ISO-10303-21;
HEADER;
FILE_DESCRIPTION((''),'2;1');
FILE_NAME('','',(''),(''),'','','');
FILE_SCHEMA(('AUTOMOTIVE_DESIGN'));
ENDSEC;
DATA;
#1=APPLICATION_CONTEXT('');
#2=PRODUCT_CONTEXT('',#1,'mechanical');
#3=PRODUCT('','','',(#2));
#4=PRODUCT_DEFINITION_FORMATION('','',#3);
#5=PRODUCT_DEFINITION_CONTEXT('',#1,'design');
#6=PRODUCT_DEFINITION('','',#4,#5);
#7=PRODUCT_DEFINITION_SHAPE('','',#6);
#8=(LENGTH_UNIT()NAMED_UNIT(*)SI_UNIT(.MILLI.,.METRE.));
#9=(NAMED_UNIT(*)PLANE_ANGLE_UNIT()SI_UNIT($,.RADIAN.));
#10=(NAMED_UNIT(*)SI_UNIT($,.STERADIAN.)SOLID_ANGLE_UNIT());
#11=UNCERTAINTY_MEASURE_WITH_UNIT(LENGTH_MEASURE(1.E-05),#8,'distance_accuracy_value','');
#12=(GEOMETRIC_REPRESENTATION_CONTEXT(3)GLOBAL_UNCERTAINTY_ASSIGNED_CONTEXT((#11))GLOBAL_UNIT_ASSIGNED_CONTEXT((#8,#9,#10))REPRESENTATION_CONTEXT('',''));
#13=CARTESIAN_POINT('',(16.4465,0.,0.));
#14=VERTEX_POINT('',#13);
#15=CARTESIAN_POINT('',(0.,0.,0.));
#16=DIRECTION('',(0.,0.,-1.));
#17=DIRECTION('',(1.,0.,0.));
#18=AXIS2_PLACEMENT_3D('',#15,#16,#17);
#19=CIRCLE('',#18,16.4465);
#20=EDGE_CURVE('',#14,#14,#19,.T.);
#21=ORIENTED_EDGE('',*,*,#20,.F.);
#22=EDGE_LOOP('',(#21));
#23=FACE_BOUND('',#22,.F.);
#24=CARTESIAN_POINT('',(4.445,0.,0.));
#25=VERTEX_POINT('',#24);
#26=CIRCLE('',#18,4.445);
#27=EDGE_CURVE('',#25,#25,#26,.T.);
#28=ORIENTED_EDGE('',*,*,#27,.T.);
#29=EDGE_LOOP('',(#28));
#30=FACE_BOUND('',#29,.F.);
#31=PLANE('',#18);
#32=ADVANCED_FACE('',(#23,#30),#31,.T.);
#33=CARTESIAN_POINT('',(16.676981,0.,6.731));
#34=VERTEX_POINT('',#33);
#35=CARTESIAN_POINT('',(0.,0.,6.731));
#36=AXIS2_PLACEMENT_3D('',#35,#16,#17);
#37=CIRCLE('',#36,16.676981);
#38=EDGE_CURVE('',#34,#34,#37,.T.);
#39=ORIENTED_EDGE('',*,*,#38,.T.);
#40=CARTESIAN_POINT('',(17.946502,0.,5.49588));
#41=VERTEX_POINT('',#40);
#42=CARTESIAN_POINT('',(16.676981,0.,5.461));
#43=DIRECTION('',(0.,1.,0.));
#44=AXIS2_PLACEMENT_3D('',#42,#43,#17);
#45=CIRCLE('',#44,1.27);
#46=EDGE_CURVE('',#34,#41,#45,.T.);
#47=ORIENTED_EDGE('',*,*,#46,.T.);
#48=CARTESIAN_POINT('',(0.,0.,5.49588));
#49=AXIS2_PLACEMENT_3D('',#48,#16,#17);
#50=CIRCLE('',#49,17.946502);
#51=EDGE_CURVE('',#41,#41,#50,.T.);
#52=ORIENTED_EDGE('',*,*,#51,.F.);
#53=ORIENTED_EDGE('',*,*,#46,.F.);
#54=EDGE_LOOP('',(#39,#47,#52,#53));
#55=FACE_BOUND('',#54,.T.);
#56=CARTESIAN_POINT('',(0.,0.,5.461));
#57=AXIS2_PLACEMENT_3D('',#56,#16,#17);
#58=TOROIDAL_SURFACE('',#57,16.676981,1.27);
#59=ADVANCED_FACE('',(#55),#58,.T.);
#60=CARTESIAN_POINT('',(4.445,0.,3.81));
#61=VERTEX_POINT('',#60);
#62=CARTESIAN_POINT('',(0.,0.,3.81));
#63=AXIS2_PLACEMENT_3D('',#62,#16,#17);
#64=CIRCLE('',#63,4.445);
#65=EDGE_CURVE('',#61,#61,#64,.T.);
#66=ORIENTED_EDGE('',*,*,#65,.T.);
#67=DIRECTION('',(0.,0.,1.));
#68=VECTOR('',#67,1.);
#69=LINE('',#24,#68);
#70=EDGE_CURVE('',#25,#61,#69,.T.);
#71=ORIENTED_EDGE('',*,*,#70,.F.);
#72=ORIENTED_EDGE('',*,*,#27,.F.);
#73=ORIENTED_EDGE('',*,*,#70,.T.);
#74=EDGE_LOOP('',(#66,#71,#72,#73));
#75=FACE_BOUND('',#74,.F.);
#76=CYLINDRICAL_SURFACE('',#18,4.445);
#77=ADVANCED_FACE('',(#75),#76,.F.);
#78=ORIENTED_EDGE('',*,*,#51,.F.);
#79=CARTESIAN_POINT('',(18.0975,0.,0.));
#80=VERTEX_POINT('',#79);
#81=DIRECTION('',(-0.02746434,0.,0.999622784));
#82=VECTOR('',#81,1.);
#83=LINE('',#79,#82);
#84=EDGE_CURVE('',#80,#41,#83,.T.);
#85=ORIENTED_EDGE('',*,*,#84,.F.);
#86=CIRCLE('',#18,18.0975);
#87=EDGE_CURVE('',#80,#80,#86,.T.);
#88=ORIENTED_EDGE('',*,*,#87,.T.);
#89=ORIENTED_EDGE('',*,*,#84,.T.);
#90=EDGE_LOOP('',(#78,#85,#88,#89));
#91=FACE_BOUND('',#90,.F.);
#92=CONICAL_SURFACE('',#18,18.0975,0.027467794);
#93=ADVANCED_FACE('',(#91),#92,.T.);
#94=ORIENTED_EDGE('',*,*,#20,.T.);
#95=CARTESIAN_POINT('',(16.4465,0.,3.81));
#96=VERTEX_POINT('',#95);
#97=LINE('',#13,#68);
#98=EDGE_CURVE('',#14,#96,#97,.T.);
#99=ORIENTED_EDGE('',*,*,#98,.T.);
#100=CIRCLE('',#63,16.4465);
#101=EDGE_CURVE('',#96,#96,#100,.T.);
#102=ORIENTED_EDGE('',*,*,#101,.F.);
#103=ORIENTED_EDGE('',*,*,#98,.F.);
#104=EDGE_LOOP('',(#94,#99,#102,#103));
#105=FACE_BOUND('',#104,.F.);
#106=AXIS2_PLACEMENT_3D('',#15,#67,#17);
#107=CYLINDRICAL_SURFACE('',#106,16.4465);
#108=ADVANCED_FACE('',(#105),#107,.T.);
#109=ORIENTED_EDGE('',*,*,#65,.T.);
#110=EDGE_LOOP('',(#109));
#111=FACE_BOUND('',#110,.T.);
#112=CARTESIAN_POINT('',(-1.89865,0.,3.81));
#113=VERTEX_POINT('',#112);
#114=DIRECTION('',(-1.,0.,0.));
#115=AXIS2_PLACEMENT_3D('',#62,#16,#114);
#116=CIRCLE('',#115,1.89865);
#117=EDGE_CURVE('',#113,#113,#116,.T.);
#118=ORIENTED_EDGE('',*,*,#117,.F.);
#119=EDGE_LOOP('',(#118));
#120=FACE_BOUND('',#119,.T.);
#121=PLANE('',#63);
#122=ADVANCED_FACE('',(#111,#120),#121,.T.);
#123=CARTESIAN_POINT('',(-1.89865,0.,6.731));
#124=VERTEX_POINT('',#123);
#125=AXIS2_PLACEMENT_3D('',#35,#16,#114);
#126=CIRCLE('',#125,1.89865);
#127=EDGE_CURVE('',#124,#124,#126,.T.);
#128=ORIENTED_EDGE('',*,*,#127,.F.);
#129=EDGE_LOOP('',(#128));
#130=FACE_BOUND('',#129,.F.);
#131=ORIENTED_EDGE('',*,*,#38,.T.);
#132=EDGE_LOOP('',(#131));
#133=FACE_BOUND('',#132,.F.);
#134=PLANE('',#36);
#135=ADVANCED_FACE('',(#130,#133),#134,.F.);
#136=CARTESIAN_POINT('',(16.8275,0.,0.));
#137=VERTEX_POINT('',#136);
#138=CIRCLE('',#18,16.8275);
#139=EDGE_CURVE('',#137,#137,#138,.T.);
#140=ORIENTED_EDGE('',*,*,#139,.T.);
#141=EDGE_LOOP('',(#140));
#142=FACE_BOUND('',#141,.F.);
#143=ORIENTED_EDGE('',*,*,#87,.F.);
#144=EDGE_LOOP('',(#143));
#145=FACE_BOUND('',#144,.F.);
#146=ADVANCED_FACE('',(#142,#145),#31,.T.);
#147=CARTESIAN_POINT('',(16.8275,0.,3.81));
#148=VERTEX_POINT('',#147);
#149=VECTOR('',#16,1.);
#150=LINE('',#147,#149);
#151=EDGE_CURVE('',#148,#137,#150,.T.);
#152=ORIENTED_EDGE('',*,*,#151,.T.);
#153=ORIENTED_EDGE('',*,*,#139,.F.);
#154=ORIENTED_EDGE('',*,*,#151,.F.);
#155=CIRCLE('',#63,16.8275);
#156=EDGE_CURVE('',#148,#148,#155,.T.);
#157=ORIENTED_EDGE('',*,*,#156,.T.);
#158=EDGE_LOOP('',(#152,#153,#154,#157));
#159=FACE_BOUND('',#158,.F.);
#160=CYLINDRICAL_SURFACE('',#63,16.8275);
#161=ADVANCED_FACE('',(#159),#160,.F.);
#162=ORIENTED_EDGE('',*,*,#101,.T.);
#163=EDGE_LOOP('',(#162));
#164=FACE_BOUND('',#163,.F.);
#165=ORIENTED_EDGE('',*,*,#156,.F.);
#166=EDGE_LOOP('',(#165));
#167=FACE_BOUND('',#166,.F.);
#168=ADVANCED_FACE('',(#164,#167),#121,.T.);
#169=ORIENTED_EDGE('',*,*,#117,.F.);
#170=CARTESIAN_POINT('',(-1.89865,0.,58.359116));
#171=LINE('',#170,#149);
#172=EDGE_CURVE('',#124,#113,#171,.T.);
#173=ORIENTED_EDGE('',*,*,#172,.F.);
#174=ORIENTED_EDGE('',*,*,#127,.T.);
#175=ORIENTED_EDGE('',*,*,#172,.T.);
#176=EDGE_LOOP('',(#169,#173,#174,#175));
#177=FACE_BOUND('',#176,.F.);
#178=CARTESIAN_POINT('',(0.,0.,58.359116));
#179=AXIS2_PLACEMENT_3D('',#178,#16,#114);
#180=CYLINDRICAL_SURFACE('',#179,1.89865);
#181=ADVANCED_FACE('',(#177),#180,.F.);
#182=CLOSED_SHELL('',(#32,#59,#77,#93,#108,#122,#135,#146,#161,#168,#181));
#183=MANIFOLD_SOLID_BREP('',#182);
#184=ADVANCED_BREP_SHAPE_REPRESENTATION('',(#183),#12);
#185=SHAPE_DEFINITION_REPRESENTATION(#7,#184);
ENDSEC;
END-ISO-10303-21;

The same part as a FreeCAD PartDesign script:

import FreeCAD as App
import Part
import Sketcher
from FreeCAD import Vector
Q = App.Units.Quantity


def edges_at(feature, points):
    """Names of the edges that pass closest to the given points."""
    edges = feature.Shape.Edges
    near = lambda p: min(range(len(edges)), key=lambda i: edges[i].distToShape(Part.Vertex(*p))[0])
    return sorted({f"Edge{near(p) + 1}" for p in points})

doc = App.newDocument("Part")
body = doc.addObject("PartDesign::Body", "Body")

sketch1 = body.newObject("Sketcher::SketchObject", "Sketch")
sketch1.AttachmentSupport = (doc.getObject("XZ_Plane"), [""])
sketch1.MapMode = "FlatFace"
sketch1.addGeometry(Part.LineSegment(Vector(17.91, 6.73, 0), Vector(0, 6.73, 0)), False)
sketch1.addGeometry(Part.LineSegment(Vector(0, 6.73, 0), Vector(0, 0, 0)), False)
sketch1.addGeometry(Part.LineSegment(Vector(0, 0, 0), Vector(16.45, 0, 0)), False)
sketch1.addGeometry(Part.LineSegment(Vector(16.45, 0, 0), Vector(16.45, 3.81, 0)), False)
sketch1.addGeometry(Part.LineSegment(Vector(16.45, 3.81, 0), Vector(16.83, 3.81, 0)), False)
sketch1.addGeometry(Part.LineSegment(Vector(16.83, 3.81, 0), Vector(16.83, 0, 0)), False)
sketch1.addGeometry(Part.LineSegment(Vector(16.83, 0, 0), Vector(18.1, 0, 0)), False)
sketch1.addGeometry(Part.LineSegment(Vector(18.1, 0, 0), Vector(17.91, 6.73, 0)), False)
sketch1.addConstraint(Sketcher.Constraint("Coincident", 0, 2, 1, 1))
sketch1.addConstraint(Sketcher.Constraint("Coincident", 1, 2, 2, 1))
sketch1.addConstraint(Sketcher.Constraint("Coincident", 2, 2, 3, 1))
sketch1.addConstraint(Sketcher.Constraint("Coincident", 3, 2, 4, 1))
sketch1.addConstraint(Sketcher.Constraint("Coincident", 4, 2, 5, 1))
sketch1.addConstraint(Sketcher.Constraint("Coincident", 5, 2, 6, 1))
sketch1.addConstraint(Sketcher.Constraint("Coincident", 6, 2, 7, 1))
sketch1.addConstraint(Sketcher.Constraint("Coincident", 7, 2, 0, 1))
sketch1.addConstraint(Sketcher.Constraint("Horizontal", 0))
sketch1.addConstraint(Sketcher.Constraint("Vertical", 1))
sketch1.addConstraint(Sketcher.Constraint("Horizontal", 2))
sketch1.addConstraint(Sketcher.Constraint("Vertical", 3))
sketch1.addConstraint(Sketcher.Constraint("Horizontal", 4))
sketch1.addConstraint(Sketcher.Constraint("Vertical", 5))
sketch1.addConstraint(Sketcher.Constraint("Horizontal", 6))
sketch1.addConstraint(Sketcher.Constraint("Coincident", 1, 2, -1, 1))
sketch1.addConstraint(Sketcher.Constraint("PointOnObject", 5, 2, -1))
sketch1.addConstraint(Sketcher.Constraint("DistanceX", 6, 1, 6, 2, Q("0.05 in")))
sketch1.addConstraint(Sketcher.Constraint("DistanceY", 3, 1, 3, 2, Q("0.15 in")))
sketch1.addConstraint(Sketcher.Constraint("DistanceX", 4, 1, 4, 2, Q("0.015 in")))
sketch1.addConstraint(Sketcher.Constraint("DistanceY", 1, 2, 1, 1, Q("0.265 in")))
sketch1.addConstraint(Sketcher.Constraint("DistanceX", 2, 1, 2, 2, Q("0.6475 in")))
sketch1.addConstraint(Sketcher.Constraint("Distance", 7, Q("0.2651 in")))
revolution = body.newObject("PartDesign::Revolution", "Revolution")
revolution.Profile = sketch1
revolution.ReferenceAxis = (sketch1, ["V_Axis"])
revolution.Angle = 360

sketch2 = body.newObject("Sketcher::SketchObject", "Sketch001")
sketch2.AttachmentSupport = (doc.getObject("XY_Plane"), [""])
sketch2.MapMode = "FlatFace"
sketch2.AttachmentOffset = App.Placement(Vector(0, 0, 0.265 * 25.4), App.Rotation())
sketch2.addGeometry(Part.Circle(Vector(0, 0, 0), Vector(0, 0, 1), 1.9), False)
sketch2.addConstraint(Sketcher.Constraint("Coincident", 0, 3, -1, 1))
sketch2.addConstraint(Sketcher.Constraint("Diameter", 0, Q("0.1495 in")))
doc.recompute()
hole = body.newObject("PartDesign::Hole", "Hole")
hole.Profile = sketch2
hole.ThreadType = "None"
hole.Diameter = Q("0.1495 in")
hole.DepthType = "ThroughAll"

sketch3 = body.newObject("Sketcher::SketchObject", "Sketch002")
sketch3.AttachmentSupport = (doc.getObject("XY_Plane"), [""])
sketch3.MapMode = "FlatFace"
sketch3.addGeometry(Part.Circle(Vector(0, 0, 0), Vector(0, 0, 1), 4.4), False)
sketch3.addGeometry(Part.Circle(Vector(0, 0, 0), Vector(0, 0, 1), 1.9), False)
sketch3.addConstraint(Sketcher.Constraint("Coincident", 0, 3, -1, 1))
sketch3.addConstraint(Sketcher.Constraint("Coincident", 1, 3, -1, 1))
sketch3.addConstraint(Sketcher.Constraint("Diameter", 0, Q("0.35 in")))
sketch3.addConstraint(Sketcher.Constraint("Diameter", 1, Q("0.1495 in")))
pocket1 = body.newObject("PartDesign::Pocket", "Pocket")
pocket1.Profile = sketch3
pocket1.Length = Q("0.15 in")
pocket1.Reversed = True
doc.recompute()

fillet = body.newObject("PartDesign::Fillet", "Fillet")
fillet.Base = (pocket1, edges_at(pocket1, [(-17.913, 0, 6.731)]))
fillet.Radius = Q("0.05 in")

doc.recompute()
